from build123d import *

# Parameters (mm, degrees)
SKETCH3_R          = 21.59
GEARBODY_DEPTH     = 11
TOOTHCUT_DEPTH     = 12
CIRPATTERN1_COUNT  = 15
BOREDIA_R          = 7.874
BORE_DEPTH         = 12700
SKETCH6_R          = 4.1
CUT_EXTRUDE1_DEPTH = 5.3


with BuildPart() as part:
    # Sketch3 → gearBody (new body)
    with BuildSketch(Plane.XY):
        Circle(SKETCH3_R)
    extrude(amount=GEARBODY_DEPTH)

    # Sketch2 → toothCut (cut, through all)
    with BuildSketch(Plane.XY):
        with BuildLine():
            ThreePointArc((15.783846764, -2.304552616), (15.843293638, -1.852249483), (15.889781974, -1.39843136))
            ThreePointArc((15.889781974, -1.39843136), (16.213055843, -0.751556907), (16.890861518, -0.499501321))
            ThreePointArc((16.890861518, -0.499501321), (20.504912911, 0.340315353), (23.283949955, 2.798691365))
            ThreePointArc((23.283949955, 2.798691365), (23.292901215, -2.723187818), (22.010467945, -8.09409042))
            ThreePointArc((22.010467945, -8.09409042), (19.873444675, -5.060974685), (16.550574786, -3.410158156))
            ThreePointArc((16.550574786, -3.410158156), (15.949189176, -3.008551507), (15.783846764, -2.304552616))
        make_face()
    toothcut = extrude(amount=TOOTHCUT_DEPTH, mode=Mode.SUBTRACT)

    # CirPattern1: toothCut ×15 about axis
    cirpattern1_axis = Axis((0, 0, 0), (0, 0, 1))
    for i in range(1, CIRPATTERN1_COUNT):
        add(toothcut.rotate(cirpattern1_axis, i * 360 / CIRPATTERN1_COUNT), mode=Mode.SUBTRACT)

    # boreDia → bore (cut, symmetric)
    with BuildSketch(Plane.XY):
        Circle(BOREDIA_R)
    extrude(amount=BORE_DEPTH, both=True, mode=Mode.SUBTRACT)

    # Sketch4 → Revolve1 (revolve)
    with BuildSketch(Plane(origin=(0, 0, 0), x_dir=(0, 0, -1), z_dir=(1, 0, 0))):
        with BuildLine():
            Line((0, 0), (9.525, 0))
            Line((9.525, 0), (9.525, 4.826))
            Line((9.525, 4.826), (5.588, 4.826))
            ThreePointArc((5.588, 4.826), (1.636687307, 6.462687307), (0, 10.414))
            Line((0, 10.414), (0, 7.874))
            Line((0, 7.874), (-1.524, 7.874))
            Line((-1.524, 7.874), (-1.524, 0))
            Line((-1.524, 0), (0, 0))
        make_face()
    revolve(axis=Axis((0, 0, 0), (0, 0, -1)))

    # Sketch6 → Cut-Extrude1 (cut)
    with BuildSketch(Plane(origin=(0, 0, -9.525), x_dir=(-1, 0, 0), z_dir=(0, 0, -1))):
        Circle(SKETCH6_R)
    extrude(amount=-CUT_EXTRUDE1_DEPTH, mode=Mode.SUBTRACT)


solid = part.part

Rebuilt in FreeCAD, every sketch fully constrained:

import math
import FreeCAD as App
import Part
import Sketcher
from FreeCAD import Vector
Q = App.Units.Quantity

doc = App.newDocument("Part")
params = doc.addObject("Spreadsheet::Sheet", "Params")
for row, (alias, value) in enumerate([
    ("sketch1_diameter", "1.7 in"),
    ("pad1_length", "11 mm"),
    ("sketch2_radius", "0.628 in"),
    ("sketch3_diameter", "0.62 in"),
    ("pocket2_length", "1000 in"),
    ("sketch4_radius", "0.22 in"),
    ("sketch4_width", "0.1 in"),
    ("sketch4_width2", "0.19 in"),
    ("sketch4_height", "0.06 in"),
    ("sketch4_height2", "0.155 in"),
    ("revolution_angle", "360 deg"),
    ("pocket3_length", "5.3 mm"),
], start=1):
    params.set(f"A{row}", alias)
    params.set(f"B{row}", "=" + value)
    params.setAlias(f"B{row}", alias)

body = doc.addObject("PartDesign::Body", "Body")

# Sketch on XY plane
sketch1 = body.newObject("Sketcher::SketchObject", "Sketch")
sketch1.AttachmentSupport = (doc.getObject("XY_Plane"), [""])
sketch1.MapMode = "FlatFace"
sketch1.addGeometry(Part.Circle(Vector(0, 0, 0), Vector(0, 0, 1), 22), False)
sketch1.addConstraint([
    Sketcher.Constraint("Coincident", 0, 3, -1, 1),
    Sketcher.Constraint("Diameter", 0, Q("1.7 in")),
])
sketch1.setExpression("Constraints[1]", "Params.sketch1_diameter")
pad1 = body.newObject("PartDesign::Pad", "Pad")
pad1.Profile = sketch1
pad1.setExpression("Length", "Params.pad1_length")

# Sketch on XY plane
sketch2 = body.newObject("Sketcher::SketchObject", "Sketch001")
sketch2.AttachmentSupport = (doc.getObject("XY_Plane"), [""])
sketch2.MapMode = "FlatFace"
sketch2.addGeometry([
    Part.ArcOfCircle(Part.Circle(Vector(0, 0, 0), Vector(0, 0, 1), 16), math.radians(-8.31), math.radians(-5.03)),  # 0
    Part.ArcOfCircle(Part.Circle(Vector(16.8, -2.4, 0), Vector(0, 0, 1), 1), math.radians(172), math.radians(258)),  # 1
    Part.ArcOfCircle(Part.Circle(Vector(15, -10.8, 0), Vector(0, 0, 1), 7.6), math.radians(21), math.radians(78)),  # 2
    Part.ArcOfCircle(Part.Circle(Vector(0, 0, 0), Vector(0, 0, 1), 23.5), math.radians(-20), math.radians(7)),  # 3
    Part.ArcOfCircle(Part.Circle(Vector(17, 7.1, 0), Vector(0, 0, 1), 7.6), math.radians(-91), math.radians(-34)),  # 4
    Part.ArcOfCircle(Part.Circle(Vector(16.9, -1.5, 0), Vector(0, 0, 1), 1), math.radians(89), math.radians(175)),  # 5
], False)
sketch2.addConstraint([
    Sketcher.Constraint("Tangent", 0, 1, 1, 1),
    Sketcher.Constraint("Tangent", 1, 2, 2, 2),
    Sketcher.Constraint("Coincident", 2, 1, 3, 1),
    Sketcher.Constraint("Coincident", 3, 2, 4, 2),
    Sketcher.Constraint("Tangent", 4, 1, 5, 1),
    Sketcher.Constraint("Tangent", 5, 2, 0, 2),
    Sketcher.Constraint("Coincident", 0, 3, -1, 1),
    Sketcher.Constraint("Coincident", 3, 3, -1, 1),
    Sketcher.Constraint("Equal", 2, 4),
    Sketcher.Constraint("Equal", 1, 5),
    Sketcher.Constraint("Radius", 0, Q("0.628 in")),
    Sketcher.Constraint("Radius", 1, Q("0.0388 in")),
    Sketcher.Constraint("Radius", 2, 7.558871),
    Sketcher.Constraint("Radius", 3, 23.451546),
    Sketcher.Constraint("DistanceY", 4, 1, -1, 1, 0.499501),
    Sketcher.Constraint("DistanceX", 5, 3, 4, 3, 0.167799),
    Sketcher.Constraint("DistanceX", -1, 1, 2, 3, 14.95176),
    Sketcher.Constraint("DistanceY", 1, 2, -1, 1, 3.410158),
])
sketch2.setExpression("Constraints[10]", "Params.sketch2_radius")
pocket1 = body.newObject("PartDesign::Pocket", "Pocket")
pocket1.Profile = sketch2
pocket1.Type = "ThroughAll"
pocket1.Reversed = True
doc.recompute()

polarpattern = body.newObject("PartDesign::PolarPattern", "PolarPattern")
polarpattern.Originals = [pocket1]
polarpattern.Axis = (doc.getObject("Z_Axis"), [""])
polarpattern.Angle = 360
polarpattern.Occurrences = 15
body.Tip = polarpattern

# Sketch on XY plane
sketch3 = body.newObject("Sketcher::SketchObject", "Sketch002")
sketch3.AttachmentSupport = (doc.getObject("XY_Plane"), [""])
sketch3.MapMode = "FlatFace"
sketch3.addGeometry(Part.Circle(Vector(0, 0, 0), Vector(0, 0, 1), 8), False)
sketch3.addConstraint([
    Sketcher.Constraint("Coincident", 0, 3, -1, 1),
    Sketcher.Constraint("Diameter", 0, Q("0.62 in")),
])
sketch3.setExpression("Constraints[1]", "Params.sketch3_diameter")
pocket2 = body.newObject("PartDesign::Pocket", "Pocket001")
pocket2.Profile = sketch3
pocket2.setExpression("Length", "Params.pocket2_length")
pocket2.Midplane = True

# Sketch on YZ plane
sketch4 = body.newObject("Sketcher::SketchObject", "Sketch003")
sketch4.AttachmentSupport = (doc.getObject("YZ_Plane"), [""])
sketch4.MapMode = "FlatFace"
sketch4.addGeometry([
    Part.LineSegment(Vector(0, -9.5, 0), Vector(4.8, -9.5, 0)),  # 0
    Part.LineSegment(Vector(4.8, -9.5, 0), Vector(4.8, -5.6, 0)),  # 1
    Part.ArcOfCircle(Part.Circle(Vector(10.4, -5.6, 0), Vector(0, 0, 1), 5.6), math.radians(90), math.radians(180)),  # 2
    Part.LineSegment(Vector(10.4, 0, 0), Vector(7.9, 0, 0)),  # 3
    Part.LineSegment(Vector(7.9, 0, 0), Vector(7.9, 1.5, 0)),  # 4
    Part.LineSegment(Vector(7.9, 1.5, 0), Vector(0, 1.5, 0)),  # 5
    Part.LineSegment(Vector(0, 1.5, 0), Vector(0, -9.5, 0)),  # 6
], False)
sketch4.addConstraint([
    Sketcher.Constraint("Coincident", 0, 2, 1, 1),
    Sketcher.Constraint("Tangent", 1, 2, 2, 2),
    Sketcher.Constraint("Tangent", 2, 1, 3, 1),
    Sketcher.Constraint("Coincident", 3, 2, 4, 1),
    Sketcher.Constraint("Coincident", 4, 2, 5, 1),
    Sketcher.Constraint("Coincident", 5, 2, 6, 1),
    Sketcher.Constraint("Coincident", 6, 2, 0, 1),
    Sketcher.Constraint("Horizontal", 0),
    Sketcher.Constraint("Vertical", 1),
    Sketcher.Constraint("Horizontal", 3),
    Sketcher.Constraint("Vertical", 4),
    Sketcher.Constraint("Horizontal", 5),
    Sketcher.Constraint("Vertical", 6),
    Sketcher.Constraint("PointOnObject", 2, 1, -1),
    Sketcher.Constraint("PointOnObject", 5, 2, -2),
    Sketcher.Constraint("Radius", 2, Q("0.22 in")),
    Sketcher.Constraint("DistanceX", 3, 2, 3, 1, Q("0.1 in")),
    Sketcher.Constraint("DistanceX", 0, 1, 0, 2, Q("0.19 in")),
    Sketcher.Constraint("DistanceY", 4, 1, 4, 2, Q("0.06 in")),
    Sketcher.Constraint("DistanceY", 1, 1, 1, 2, Q("0.155 in")),
])
sketch4.setExpression("Constraints[15]", "Params.sketch4_radius")
sketch4.setExpression("Constraints[16]", "Params.sketch4_width")
sketch4.setExpression("Constraints[17]", "Params.sketch4_width2")
sketch4.setExpression("Constraints[18]", "Params.sketch4_height")
sketch4.setExpression("Constraints[19]", "Params.sketch4_height2")
revolution = body.newObject("PartDesign::Revolution", "Revolution")
revolution.Profile = sketch4
revolution.ReferenceAxis = (sketch4, ["V_Axis"])
revolution.setExpression("Angle", "Params.revolution_angle")

# Sketch on XY plane
sketch5 = body.newObject("Sketcher::SketchObject", "Sketch004")
sketch5.AttachmentSupport = (doc.getObject("XY_Plane"), [""])
sketch5.MapMode = "FlatFace"
sketch5.AttachmentOffset = App.Placement(Vector(0, 0, -0.375 * 25.4), App.Rotation())
sketch5.addGeometry(Part.Circle(Vector(0, 0, 0), Vector(0, 0, 1), 4.1), False)
sketch5.addConstraint([
    Sketcher.Constraint("Coincident", 0, 3, -1, 1),
    Sketcher.Constraint("Diameter", 0, 8.2),
])
pocket3 = body.newObject("PartDesign::Pocket", "Pocket002")
pocket3.Profile = sketch5
pocket3.setExpression("Length", "Params.pocket3_length")
pocket3.Reversed = True

doc.recompute()
